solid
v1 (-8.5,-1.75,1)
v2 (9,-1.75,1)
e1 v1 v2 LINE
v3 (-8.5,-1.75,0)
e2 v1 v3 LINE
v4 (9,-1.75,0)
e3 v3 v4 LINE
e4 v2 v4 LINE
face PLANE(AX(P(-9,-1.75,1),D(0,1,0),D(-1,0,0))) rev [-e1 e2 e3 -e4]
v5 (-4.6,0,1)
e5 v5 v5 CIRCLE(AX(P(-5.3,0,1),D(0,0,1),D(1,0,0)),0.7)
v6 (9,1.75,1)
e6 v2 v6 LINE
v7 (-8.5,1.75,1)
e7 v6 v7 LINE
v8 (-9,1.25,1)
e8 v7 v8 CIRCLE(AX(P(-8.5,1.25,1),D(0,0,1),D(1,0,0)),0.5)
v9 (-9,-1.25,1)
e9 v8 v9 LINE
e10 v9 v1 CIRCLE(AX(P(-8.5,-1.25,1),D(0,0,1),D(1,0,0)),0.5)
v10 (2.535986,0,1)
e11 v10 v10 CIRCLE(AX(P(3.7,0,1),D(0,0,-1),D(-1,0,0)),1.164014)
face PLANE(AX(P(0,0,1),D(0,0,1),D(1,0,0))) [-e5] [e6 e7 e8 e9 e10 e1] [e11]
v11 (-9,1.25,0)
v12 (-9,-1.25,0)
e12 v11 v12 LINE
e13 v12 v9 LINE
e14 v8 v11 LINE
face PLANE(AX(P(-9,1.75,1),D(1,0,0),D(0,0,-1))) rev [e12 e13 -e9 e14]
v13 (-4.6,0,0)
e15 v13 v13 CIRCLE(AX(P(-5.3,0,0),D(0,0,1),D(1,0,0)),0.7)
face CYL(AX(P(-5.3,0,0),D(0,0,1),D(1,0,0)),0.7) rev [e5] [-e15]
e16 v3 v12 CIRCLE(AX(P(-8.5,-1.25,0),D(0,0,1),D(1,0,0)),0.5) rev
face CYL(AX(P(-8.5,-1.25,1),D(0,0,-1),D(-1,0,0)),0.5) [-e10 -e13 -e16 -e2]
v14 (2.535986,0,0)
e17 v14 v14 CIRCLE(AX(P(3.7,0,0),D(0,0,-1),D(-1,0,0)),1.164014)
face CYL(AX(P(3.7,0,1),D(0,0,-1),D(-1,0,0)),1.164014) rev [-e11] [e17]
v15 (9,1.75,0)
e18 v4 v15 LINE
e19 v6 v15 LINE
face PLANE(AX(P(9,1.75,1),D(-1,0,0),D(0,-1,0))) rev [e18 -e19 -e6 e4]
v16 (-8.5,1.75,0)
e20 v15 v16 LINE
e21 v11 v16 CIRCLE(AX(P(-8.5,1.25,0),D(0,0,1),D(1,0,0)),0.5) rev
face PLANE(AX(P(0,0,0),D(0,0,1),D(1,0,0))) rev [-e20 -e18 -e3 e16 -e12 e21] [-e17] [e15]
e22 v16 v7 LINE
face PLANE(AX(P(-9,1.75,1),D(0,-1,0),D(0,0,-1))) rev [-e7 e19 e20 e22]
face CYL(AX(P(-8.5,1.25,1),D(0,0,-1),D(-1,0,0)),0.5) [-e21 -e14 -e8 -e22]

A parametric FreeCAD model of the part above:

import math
import FreeCAD as App
import Part
import Sketcher
Q = App.Units.Quantity


def edges_at(feature, points):
    """Names of the edges that pass closest to the given points."""
    edges = feature.Shape.Edges
    near = lambda p: min(range(len(edges)), key=lambda i: edges[i].distToShape(Part.Vertex(*p))[0])
    return sorted({f"Edge{near(p) + 1}" for p in points})


def add_polygon(sketch, points):
    """Adds a closed chain of lines whose ends are joined by coincident constraints."""
    first, n = sketch.GeometryCount, len(points)
    for a, b in zip(points, points[1:] + points[:1]):
        sketch.addGeometry(Part.LineSegment(App.Vector(*a, 0), App.Vector(*b, 0)), False)
    for i in range(n):
        sketch.addConstraint(Sketcher.Constraint("Coincident", first + i, 2, first + (i + 1) % n, 1))

doc = App.newDocument("Part")
body = doc.addObject("PartDesign::Body", "Body")

# Sketch on XY plane
sketch1 = doc.addObject("Sketcher::SketchObject", "Sketch")
body.addObject(sketch1)
sketch1.AttachmentSupport = (doc.XY_Plane, [""])
sketch1.MapMode = "FlatFace"
add_polygon(sketch1, [(-9, 1.8), (-9, -1.8), (9, -1.8), (9, 1.8)])  # lines 0-3
sketch1.addConstraint([
    Sketcher.Constraint("Vertical", 0),
    Sketcher.Constraint("Horizontal", 1),
    Sketcher.Constraint("Vertical", 2),
    Sketcher.Constraint("Horizontal", 3),
    Sketcher.Constraint("Symmetric", 0, 2, 2, 2, -1, 1),
    Sketcher.Constraint("DistanceX", 1, 1, 1, 2, Q("18 mm")),
    Sketcher.Constraint("DistanceY", 0, 2, 0, 1, Q("3.5 mm")),
])
pad1 = doc.addObject("PartDesign::Pad", "Pad")
body.addObject(pad1)
pad1.Profile = sketch1
pad1.Length = 1

# Sketch on XY plane
sketch2 = doc.addObject("Sketcher::SketchObject", "Sketch001")
body.addObject(sketch2)
sketch2.AttachmentSupport = (doc.XY_Plane, [""])
sketch2.MapMode = "FlatFace"
sketch2.AttachmentOffset = App.Placement(App.Vector(0, 0, 1), App.Rotation())
sketch2.addGeometry(Part.Circle(App.Vector(-5.3, 0, 0), App.Vector(0, 0, 1), 0.7), False)
sketch2.addConstraint([
    Sketcher.Constraint("PointOnObject", 0, 3, -1),
    Sketcher.Constraint("Diameter", 0, Q("1.4 mm")),
    Sketcher.Constraint("DistanceX", 0, 3, -1, 1, Q("5.3 mm")),
])
pocket1 = doc.addObject("PartDesign::Pocket", "Pocket")
body.addObject(pocket1)
pocket1.Profile = sketch2
pocket1.Type = "ThroughAll"
doc.recompute()

fillet = doc.addObject("PartDesign::Fillet", "Fillet")
body.addObject(fillet)
fillet.Base = (pocket1, edges_at(pocket1, [(-9, -1.75, 0.5), (-9, 1.75, 0.5)]))
fillet.Radius = 0.5

# Sketch on XY plane
sketch3 = doc.addObject("Sketcher::SketchObject", "Sketch002")
body.addObject(sketch3)
sketch3.AttachmentSupport = (doc.XY_Plane, [""])
sketch3.MapMode = "FlatFace"
add_polygon(sketch3, [(11.84, 4.59), (11.84, -4.59), (-11.84, -4.59), (-11.84, 4.59)])  # lines 0-3
sketch3.addGeometry(Part.LineSegment(App.Vector(-8.5, -1.75, 0), App.Vector(9, -1.75, 0)), False)  # 4
sketch3.addGeometry(Part.LineSegment(App.Vector(9, -1.75, 0), App.Vector(9, 1.75, 0)), False)  # 5
sketch3.addGeometry(Part.LineSegment(App.Vector(9, 1.75, 0), App.Vector(-8.5, 1.75, 0)), False)  # 6
sketch3.addGeometry(Part.ArcOfCircle(Part.Circle(App.Vector(-8.5, 1.25, 0), App.Vector(0, 0, 1), 0.5), math.radians(90), math.radians(180)), False)  # 7
sketch3.addGeometry(Part.LineSegment(App.Vector(-9, 1.25, 0), App.Vector(-9, -1.25, 0)), False)  # 8
sketch3.addGeometry(Part.ArcOfCircle(Part.Circle(App.Vector(-8.5, -1.25, 0), App.Vector(0, 0, 1), 0.5), math.radians(180), math.radians(270)), False)  # 9
sketch3.addGeometry(Part.Circle(App.Vector(3.7, 0, 0), App.Vector(0, 0, 1), 1.16), False)  # 10
sketch3.addConstraint([
    Sketcher.Constraint("Coincident", 4, 2, 5, 1),
    Sketcher.Constraint("Coincident", 5, 2, 6, 1),
    Sketcher.Constraint("Tangent", 6, 2, 7, 1),
    Sketcher.Constraint("Tangent", 7, 2, 8, 1),
    Sketcher.Constraint("Tangent", 8, 2, 9, 1),
    Sketcher.Constraint("Tangent", 9, 2, 4, 1),
    Sketcher.Constraint("Vertical", 0),
    Sketcher.Constraint("Horizontal", 1),
    Sketcher.Constraint("Vertical", 2),
    Sketcher.Constraint("Horizontal", 3),
    Sketcher.Constraint("Horizontal", 4),
    Sketcher.Constraint("Vertical", 5),
    Sketcher.Constraint("Horizontal", 6),
    Sketcher.Constraint("Vertical", 8),
    Sketcher.Constraint("Equal", 7, 9),
    Sketcher.Constraint("Symmetric", 0, 2, 2, 2, -1, 1),
    Sketcher.Constraint("PointOnObject", 10, 3, -1),
    Sketcher.Constraint("Radius", 7, Q("0.5 mm")),
    Sketcher.Constraint("DistanceX", 4, 1, 4, 2, Q("17.5 mm")),
    Sketcher.Constraint("DistanceY", 5, 1, 5, 2, Q("3.5 mm")),
    Sketcher.Constraint("DistanceX", -1, 1, 4, 2, Q("9 mm")),
    Sketcher.Constraint("DistanceX", -1, 1, 10, 3, Q("3.7 mm")),
    Sketcher.Constraint("DistanceX", 1, 2, 1, 1, Q("23.672 mm")),
    Sketcher.Constraint("DistanceY", 0, 2, 0, 1, Q("9.172 mm")),
    Sketcher.Constraint("DistanceY", -1, 1, 7, 3, Q("1.25 mm")),
    Sketcher.Constraint("Diameter", 10, Q("2.328028 mm")),
])
pocket2 = doc.addObject("PartDesign::Pocket", "Pocket001")
body.addObject(pocket2)
pocket2.Profile = sketch3
pocket2.Type = "ThroughAll"
pocket2.Reversed = True

doc.recompute()
